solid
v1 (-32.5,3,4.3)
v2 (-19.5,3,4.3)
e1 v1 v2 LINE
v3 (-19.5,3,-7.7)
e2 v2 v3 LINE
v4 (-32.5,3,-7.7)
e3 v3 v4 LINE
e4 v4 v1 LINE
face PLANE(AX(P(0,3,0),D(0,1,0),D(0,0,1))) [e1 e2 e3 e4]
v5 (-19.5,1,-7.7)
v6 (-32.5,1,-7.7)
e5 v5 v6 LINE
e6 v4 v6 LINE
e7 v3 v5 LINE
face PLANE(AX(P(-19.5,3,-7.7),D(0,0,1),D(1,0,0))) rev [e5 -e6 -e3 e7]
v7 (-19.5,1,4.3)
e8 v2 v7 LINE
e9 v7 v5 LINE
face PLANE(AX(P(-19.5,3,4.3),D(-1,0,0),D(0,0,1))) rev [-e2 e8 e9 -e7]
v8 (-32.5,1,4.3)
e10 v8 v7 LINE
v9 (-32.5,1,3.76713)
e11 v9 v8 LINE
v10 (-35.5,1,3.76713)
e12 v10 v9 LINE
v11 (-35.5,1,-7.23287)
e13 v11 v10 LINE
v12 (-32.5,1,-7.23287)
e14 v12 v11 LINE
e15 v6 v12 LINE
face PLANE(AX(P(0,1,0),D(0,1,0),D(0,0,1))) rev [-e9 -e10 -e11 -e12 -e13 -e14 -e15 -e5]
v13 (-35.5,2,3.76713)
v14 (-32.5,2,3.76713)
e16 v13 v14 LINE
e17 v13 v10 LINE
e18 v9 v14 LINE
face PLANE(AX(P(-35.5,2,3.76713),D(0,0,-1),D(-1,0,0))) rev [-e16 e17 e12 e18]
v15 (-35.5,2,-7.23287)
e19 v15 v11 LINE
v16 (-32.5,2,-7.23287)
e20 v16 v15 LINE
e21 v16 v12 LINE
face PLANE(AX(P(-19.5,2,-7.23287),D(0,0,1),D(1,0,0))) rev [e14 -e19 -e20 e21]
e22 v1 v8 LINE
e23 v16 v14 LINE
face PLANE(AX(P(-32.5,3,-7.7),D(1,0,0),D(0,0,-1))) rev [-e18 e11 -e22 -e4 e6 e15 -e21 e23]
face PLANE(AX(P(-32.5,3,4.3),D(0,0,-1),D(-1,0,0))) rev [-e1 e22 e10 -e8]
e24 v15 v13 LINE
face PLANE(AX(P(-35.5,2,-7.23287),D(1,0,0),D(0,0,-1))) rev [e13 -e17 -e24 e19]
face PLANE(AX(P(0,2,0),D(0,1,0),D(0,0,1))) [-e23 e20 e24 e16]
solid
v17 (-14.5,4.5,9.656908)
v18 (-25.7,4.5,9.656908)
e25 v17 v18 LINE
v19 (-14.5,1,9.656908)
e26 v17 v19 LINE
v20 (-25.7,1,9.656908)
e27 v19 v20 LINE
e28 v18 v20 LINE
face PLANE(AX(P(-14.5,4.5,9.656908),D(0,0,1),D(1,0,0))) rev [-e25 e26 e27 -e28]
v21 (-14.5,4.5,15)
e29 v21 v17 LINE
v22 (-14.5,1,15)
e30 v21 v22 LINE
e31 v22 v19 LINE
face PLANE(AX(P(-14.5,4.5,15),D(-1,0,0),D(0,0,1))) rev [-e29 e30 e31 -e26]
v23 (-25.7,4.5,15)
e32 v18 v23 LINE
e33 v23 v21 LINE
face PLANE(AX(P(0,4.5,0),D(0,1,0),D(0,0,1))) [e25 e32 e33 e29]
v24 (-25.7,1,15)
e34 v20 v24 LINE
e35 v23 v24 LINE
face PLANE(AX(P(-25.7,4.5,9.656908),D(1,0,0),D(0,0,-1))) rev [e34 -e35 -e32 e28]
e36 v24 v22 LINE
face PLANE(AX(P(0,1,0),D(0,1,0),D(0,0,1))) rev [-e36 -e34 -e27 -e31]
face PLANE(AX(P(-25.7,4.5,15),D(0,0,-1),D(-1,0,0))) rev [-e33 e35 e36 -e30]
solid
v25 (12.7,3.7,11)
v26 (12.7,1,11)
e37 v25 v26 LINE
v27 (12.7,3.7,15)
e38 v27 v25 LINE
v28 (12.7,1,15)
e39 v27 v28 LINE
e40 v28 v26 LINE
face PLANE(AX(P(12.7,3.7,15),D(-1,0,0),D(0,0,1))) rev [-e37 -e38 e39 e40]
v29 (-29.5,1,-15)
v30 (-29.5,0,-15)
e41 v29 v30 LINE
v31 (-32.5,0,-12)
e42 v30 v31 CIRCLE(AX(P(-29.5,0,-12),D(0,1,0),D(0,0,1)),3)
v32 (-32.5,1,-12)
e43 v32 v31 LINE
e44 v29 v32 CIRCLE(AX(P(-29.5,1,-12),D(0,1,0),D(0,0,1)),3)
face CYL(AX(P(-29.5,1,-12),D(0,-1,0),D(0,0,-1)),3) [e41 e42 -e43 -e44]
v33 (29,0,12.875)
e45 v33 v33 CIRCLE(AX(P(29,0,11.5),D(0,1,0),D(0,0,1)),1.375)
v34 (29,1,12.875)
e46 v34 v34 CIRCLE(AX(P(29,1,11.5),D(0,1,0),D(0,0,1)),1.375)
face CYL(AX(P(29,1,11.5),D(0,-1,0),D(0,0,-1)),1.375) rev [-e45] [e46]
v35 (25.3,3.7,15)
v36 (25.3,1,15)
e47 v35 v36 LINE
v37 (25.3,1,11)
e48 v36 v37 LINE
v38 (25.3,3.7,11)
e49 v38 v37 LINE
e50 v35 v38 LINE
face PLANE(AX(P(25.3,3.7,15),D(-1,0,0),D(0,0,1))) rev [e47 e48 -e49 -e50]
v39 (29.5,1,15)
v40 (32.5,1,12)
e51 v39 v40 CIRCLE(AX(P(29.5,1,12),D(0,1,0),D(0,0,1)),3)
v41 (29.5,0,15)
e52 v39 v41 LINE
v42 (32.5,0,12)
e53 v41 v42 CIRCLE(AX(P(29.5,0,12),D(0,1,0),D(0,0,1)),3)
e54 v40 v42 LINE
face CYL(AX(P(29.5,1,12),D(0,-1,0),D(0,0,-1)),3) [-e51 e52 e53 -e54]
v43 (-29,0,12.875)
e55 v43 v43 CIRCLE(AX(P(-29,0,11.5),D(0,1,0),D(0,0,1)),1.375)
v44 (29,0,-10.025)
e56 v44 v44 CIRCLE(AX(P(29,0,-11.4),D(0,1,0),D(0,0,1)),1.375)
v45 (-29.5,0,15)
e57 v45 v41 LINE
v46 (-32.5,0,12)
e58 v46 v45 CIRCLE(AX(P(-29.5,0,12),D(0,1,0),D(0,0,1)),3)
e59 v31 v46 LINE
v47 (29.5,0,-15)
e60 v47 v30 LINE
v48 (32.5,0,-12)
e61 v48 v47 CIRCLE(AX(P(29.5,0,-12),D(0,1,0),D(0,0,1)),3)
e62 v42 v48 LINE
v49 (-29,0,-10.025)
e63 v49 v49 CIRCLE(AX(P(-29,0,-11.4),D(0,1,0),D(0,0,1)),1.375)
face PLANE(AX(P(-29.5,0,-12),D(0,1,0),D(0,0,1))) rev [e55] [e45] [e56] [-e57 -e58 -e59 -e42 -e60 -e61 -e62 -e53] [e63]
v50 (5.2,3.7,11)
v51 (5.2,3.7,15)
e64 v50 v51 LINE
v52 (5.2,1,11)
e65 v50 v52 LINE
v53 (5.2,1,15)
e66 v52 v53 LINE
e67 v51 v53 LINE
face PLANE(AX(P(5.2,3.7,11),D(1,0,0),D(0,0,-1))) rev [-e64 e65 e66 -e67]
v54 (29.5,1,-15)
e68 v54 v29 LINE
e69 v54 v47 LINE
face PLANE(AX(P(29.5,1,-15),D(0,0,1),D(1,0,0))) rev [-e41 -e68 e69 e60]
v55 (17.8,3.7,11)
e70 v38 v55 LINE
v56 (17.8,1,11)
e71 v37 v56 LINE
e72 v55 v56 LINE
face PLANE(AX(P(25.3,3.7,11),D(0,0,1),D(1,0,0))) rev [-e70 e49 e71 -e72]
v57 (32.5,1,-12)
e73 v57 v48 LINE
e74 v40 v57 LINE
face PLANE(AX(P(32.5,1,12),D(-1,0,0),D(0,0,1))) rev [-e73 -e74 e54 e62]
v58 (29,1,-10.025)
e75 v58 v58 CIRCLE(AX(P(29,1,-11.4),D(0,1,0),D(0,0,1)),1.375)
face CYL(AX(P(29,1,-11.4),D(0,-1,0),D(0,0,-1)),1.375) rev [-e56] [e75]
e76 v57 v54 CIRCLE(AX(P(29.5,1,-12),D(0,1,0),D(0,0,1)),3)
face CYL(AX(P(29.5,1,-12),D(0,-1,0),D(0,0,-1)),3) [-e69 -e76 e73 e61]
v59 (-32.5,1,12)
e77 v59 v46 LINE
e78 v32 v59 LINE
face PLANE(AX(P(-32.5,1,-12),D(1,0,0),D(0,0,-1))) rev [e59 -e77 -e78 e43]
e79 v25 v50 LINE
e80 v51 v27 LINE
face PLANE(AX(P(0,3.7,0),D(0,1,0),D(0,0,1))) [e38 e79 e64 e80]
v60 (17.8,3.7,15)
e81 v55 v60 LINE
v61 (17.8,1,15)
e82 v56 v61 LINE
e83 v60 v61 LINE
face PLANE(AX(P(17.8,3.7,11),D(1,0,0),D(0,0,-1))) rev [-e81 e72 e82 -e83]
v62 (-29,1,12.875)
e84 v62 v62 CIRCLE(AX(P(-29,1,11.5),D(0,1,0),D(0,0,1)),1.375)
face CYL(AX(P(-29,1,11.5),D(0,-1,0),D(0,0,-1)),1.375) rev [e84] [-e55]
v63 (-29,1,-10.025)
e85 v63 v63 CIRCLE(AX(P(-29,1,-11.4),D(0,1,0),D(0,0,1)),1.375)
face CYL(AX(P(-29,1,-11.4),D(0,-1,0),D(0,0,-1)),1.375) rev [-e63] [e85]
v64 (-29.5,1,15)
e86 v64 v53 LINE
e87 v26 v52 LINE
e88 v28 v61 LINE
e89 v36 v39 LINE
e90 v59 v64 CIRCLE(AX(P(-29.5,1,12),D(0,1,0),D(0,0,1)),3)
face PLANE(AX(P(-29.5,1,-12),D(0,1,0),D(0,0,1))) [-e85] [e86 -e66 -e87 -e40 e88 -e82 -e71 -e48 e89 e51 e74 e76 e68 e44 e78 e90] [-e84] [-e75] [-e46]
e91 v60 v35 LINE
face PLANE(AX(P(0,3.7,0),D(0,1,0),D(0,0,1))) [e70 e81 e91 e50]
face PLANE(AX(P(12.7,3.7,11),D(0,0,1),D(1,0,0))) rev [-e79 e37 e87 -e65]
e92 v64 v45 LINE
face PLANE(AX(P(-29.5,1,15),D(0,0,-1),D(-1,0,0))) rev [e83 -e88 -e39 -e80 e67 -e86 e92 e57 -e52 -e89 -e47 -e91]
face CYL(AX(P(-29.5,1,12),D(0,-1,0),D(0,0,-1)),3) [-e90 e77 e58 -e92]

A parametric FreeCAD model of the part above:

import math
import FreeCAD as App
import Part
import Sketcher
from FreeCAD import Vector
Q = App.Units.Quantity

doc = App.newDocument("Part")
body = doc.addObject("PartDesign::Body", "Body")

# Sketch on XZ plane
sketch1 = body.newObject("Sketcher::SketchObject", "Sketch")
sketch1.AttachmentSupport = (doc.getObject("XZ_Plane"), [""])
sketch1.MapMode = "FlatFace"
sketch1.addGeometry([
    Part.LineSegment(Vector(-32.5, -12, 0), Vector(-32.5, 12, 0)),  # 0
    Part.ArcOfCircle(Part.Circle(Vector(-29.5, 12, 0), Vector(0, 0, 1), 3), math.radians(90), math.radians(180)),  # 1
    Part.LineSegment(Vector(-29.5, 15, 0), Vector(29.5, 15, 0)),  # 2
    Part.ArcOfCircle(Part.Circle(Vector(29.5, 12, 0), Vector(0, 0, 1), 3), math.radians(0), math.radians(90)),  # 3
    Part.LineSegment(Vector(32.5, 12, 0), Vector(32.5, -12, 0)),  # 4
    Part.ArcOfCircle(Part.Circle(Vector(29.5, -12, 0), Vector(0, 0, 1), 3), math.radians(-90), math.radians(0)),  # 5
    Part.LineSegment(Vector(29.5, -15, 0), Vector(-29.5, -15, 0)),  # 6
    Part.ArcOfCircle(Part.Circle(Vector(-29.5, -12, 0), Vector(0, 0, 1), 3), math.radians(180), math.radians(270)),  # 7
    Part.Circle(Vector(-29, 11.5, 0), Vector(0, 0, 1), 1.375),  # 8
    Part.Circle(Vector(29, 11.5, 0), Vector(0, 0, 1), 1.375),  # 9
    Part.Circle(Vector(-29, -11.4, 0), Vector(0, 0, 1), 1.375),  # 10
    Part.Circle(Vector(29, -11.4, 0), Vector(0, 0, 1), 1.375),  # 11
], False)
sketch1.addConstraint([
    Sketcher.Constraint("Tangent", 0, 2, 1, 2),
    Sketcher.Constraint("Tangent", 1, 1, 2, 1),
    Sketcher.Constraint("Tangent", 2, 2, 3, 2),
    Sketcher.Constraint("Tangent", 3, 1, 4, 1),
    Sketcher.Constraint("Tangent", 4, 2, 5, 2),
    Sketcher.Constraint("Tangent", 5, 1, 6, 1),
    Sketcher.Constraint("Tangent", 6, 2, 7, 2),
    Sketcher.Constraint("Tangent", 7, 1, 0, 1),
    Sketcher.Constraint("Vertical", 0),
    Sketcher.Constraint("Horizontal", 2),
    Sketcher.Constraint("Vertical", 4),
    Sketcher.Constraint("Horizontal", 6),
    Sketcher.Constraint("Equal", 1, 3),
    Sketcher.Constraint("Equal", 3, 5),
    Sketcher.Constraint("Equal", 5, 7),
    Sketcher.Constraint("Equal", 8, 9),
    Sketcher.Constraint("Equal", 9, 10),
    Sketcher.Constraint("Equal", 10, 11),
    Sketcher.Constraint("Symmetric", 1, 3, 5, 3, -1, 1),
    Sketcher.Constraint("Symmetric", 8, 3, 9, 3, -2),
    Sketcher.Constraint("Symmetric", 10, 3, 11, 3, -2),
    Sketcher.Constraint("Vertical", 8, 3, 10, 3),
    Sketcher.Constraint("Radius", 1, Q("3 mm")),
    Sketcher.Constraint("Diameter", 8, Q("2.75 mm")),
    Sketcher.Constraint("DistanceX", 2, 1, 2, 2, Q("59 mm")),
    Sketcher.Constraint("DistanceY", 0, 1, 0, 2, Q("24 mm")),
    Sketcher.Constraint("DistanceX", 8, 3, -1, 1, Q("29 mm")),
    Sketcher.Constraint("DistanceY", -1, 1, 8, 3, Q("11.5 mm")),
    Sketcher.Constraint("DistanceY", 10, 3, -1, 1, Q("11.4 mm")),
])
pad1 = body.newObject("PartDesign::Pad", "Pad")
pad1.Profile = sketch1
pad1.Length = 1
pad1.Reversed = True

# Sketch on XZ plane
sketch2 = body.newObject("Sketcher::SketchObject", "Sketch001")
sketch2.AttachmentSupport = (doc.getObject("XZ_Plane"), [""])
sketch2.MapMode = "FlatFace"
sketch2.AttachmentOffset = App.Placement(Vector(0, 0, -1), App.Rotation())
sketch2.addGeometry([
    Part.LineSegment(Vector(17.8, 11, 0), Vector(17.8, 15, 0)),  # 0
    Part.LineSegment(Vector(17.8, 15, 0), Vector(25.3, 15, 0)),  # 1
    Part.LineSegment(Vector(25.3, 15, 0), Vector(25.3, 11, 0)),  # 2
    Part.LineSegment(Vector(25.3, 11, 0), Vector(17.8, 11, 0)),  # 3
    Part.LineSegment(Vector(5.2, 11, 0), Vector(5.2, 15, 0)),  # 4
    Part.LineSegment(Vector(5.2, 15, 0), Vector(12.7, 15, 0)),  # 5
    Part.LineSegment(Vector(12.7, 15, 0), Vector(12.7, 11, 0)),  # 6
    Part.LineSegment(Vector(12.7, 11, 0), Vector(5.2, 11, 0)),  # 7
], False)
sketch2.addConstraint([
    Sketcher.Constraint("Coincident", 0, 2, 1, 1),
    Sketcher.Constraint("Coincident", 1, 2, 2, 1),
    Sketcher.Constraint("Coincident", 2, 2, 3, 1),
    Sketcher.Constraint("Coincident", 3, 2, 0, 1),
    Sketcher.Constraint("Coincident", 4, 2, 5, 1),
    Sketcher.Constraint("Coincident", 5, 2, 6, 1),
    Sketcher.Constraint("Coincident", 6, 2, 7, 1),
    Sketcher.Constraint("Coincident", 7, 2, 4, 1),
    Sketcher.Constraint("Vertical", 0),
    Sketcher.Constraint("Horizontal", 1),
    Sketcher.Constraint("Vertical", 2),
    Sketcher.Constraint("Horizontal", 3),
    Sketcher.Constraint("Vertical", 4),
    Sketcher.Constraint("Horizontal", 5),
    Sketcher.Constraint("Vertical", 6),
    Sketcher.Constraint("Horizontal", 7),
    Sketcher.Constraint("Horizontal", 1, 2, 4, 2),
    Sketcher.Constraint("Horizontal", 3, 2, 6, 2),
    Sketcher.Constraint("Equal", 3, 5),
    Sketcher.Constraint("DistanceY", 0, 1, 0, 2, Q("4 mm")),
    Sketcher.Constraint("DistanceX", 1, 1, 1, 2, Q("7.5 mm")),
    Sketcher.Constraint("DistanceY", -1, 1, 0, 2, Q("15 mm")),
    Sketcher.Constraint("DistanceX", -1, 1, 0, 2, Q("17.8 mm")),
    Sketcher.Constraint("DistanceX", -1, 1, 4, 2, Q("5.2 mm")),
])
pad2 = body.newObject("PartDesign::Pad", "Pad001")
pad2.Profile = sketch2
pad2.Length = 2.7
pad2.Reversed = True
body2 = doc.addObject("PartDesign::Body", "Body001")

# Sketch on XZ plane
sketch3 = body2.newObject("Sketcher::SketchObject", "Sketch002")
sketch3.AttachmentSupport = (doc.getObject("XZ_Plane001"), [""])
sketch3.MapMode = "FlatFace"
sketch3.AttachmentOffset = App.Placement(Vector(0, 0, -1), App.Rotation())
sketch3.addGeometry([
    Part.LineSegment(Vector(-25.7, 9.656908, 0), Vector(-25.7, 15, 0)),
    Part.LineSegment(Vector(-25.7, 15, 0), Vector(-14.5, 15, 0)),
    Part.LineSegment(Vector(-14.5, 15, 0), Vector(-14.5, 9.656908, 0)),
    Part.LineSegment(Vector(-14.5, 9.656908, 0), Vector(-25.7, 9.656908, 0)),
], False)
sketch3.addConstraint([
    Sketcher.Constraint("Coincident", 0, 2, 1, 1),
    Sketcher.Constraint("Coincident", 1, 2, 2, 1),
    Sketcher.Constraint("Coincident", 2, 2, 3, 1),
    Sketcher.Constraint("Coincident", 3, 2, 0, 1),
    Sketcher.Constraint("Vertical", 0),
    Sketcher.Constraint("Horizontal", 1),
    Sketcher.Constraint("Vertical", 2),
    Sketcher.Constraint("Horizontal", 3),
    Sketcher.Constraint("DistanceX", 1, 1, 1, 2, Q("11.2 mm")),
    Sketcher.Constraint("DistanceY", -1, 1, 0, 2, Q("15 mm")),
    Sketcher.Constraint("DistanceX", 0, 2, -1, 1, Q("25.7 mm")),
    Sketcher.Constraint("DistanceY", 0, 1, 0, 2, Q("5.343092 mm")),
])
pad3 = body2.newObject("PartDesign::Pad", "Pad002")
pad3.Profile = sketch3
pad3.Length = 3.5
pad3.Reversed = True
body3 = doc.addObject("PartDesign::Body", "Body002")

# Sketch on XZ plane
sketch4 = body3.newObject("Sketcher::SketchObject", "Sketch003")
sketch4.AttachmentSupport = (doc.getObject("XZ_Plane002"), [""])
sketch4.MapMode = "FlatFace"
sketch4.AttachmentOffset = App.Placement(Vector(0, 0, -1), App.Rotation())
sketch4.addGeometry([
    Part.LineSegment(Vector(-32.5, -7.7, 0), Vector(-32.5, 4.3, 0)),
    Part.LineSegment(Vector(-32.5, 4.3, 0), Vector(-19.5, 4.3, 0)),
    Part.LineSegment(Vector(-19.5, 4.3, 0), Vector(-19.5, -7.7, 0)),
    Part.LineSegment(Vector(-19.5, -7.7, 0), Vector(-32.5, -7.7, 0)),
], False)
sketch4.addConstraint([
    Sketcher.Constraint("Coincident", 0, 2, 1, 1),
    Sketcher.Constraint("Coincident", 1, 2, 2, 1),
    Sketcher.Constraint("Coincident", 2, 2, 3, 1),
    Sketcher.Constraint("Coincident", 3, 2, 0, 1),
    Sketcher.Constraint("Vertical", 0),
    Sketcher.Constraint("Horizontal", 1),
    Sketcher.Constraint("Vertical", 2),
    Sketcher.Constraint("Horizontal", 3),
    Sketcher.Constraint("DistanceX", 1, 1, 1, 2, Q("13 mm")),
    Sketcher.Constraint("DistanceY", 0, 1, 0, 2, Q("12 mm")),
    Sketcher.Constraint("DistanceX", 0, 2, -1, 1, Q("32.5 mm")),
    Sketcher.Constraint("DistanceY", -1, 1, 0, 2, Q("4.3 mm")),
])
pad4 = body3.newObject("PartDesign::Pad", "Pad003")
pad4.Profile = sketch4
pad4.Length = 2
pad4.Reversed = True

# Sketch on XZ plane
sketch5 = body3.newObject("Sketcher::SketchObject", "Sketch004")
sketch5.AttachmentSupport = (doc.getObject("XZ_Plane002"), [""])
sketch5.MapMode = "FlatFace"
sketch5.AttachmentOffset = App.Placement(Vector(0, 0, -1), App.Rotation())
sketch5.addGeometry([
    Part.LineSegment(Vector(-35.5, -7.23287, 0), Vector(-35.5, 3.76713, 0)),
    Part.LineSegment(Vector(-35.5, 3.76713, 0), Vector(-19.5, 3.76713, 0)),
    Part.LineSegment(Vector(-19.5, 3.76713, 0), Vector(-19.5, -7.23287, 0)),
    Part.LineSegment(Vector(-19.5, -7.23287, 0), Vector(-35.5, -7.23287, 0)),
], False)
sketch5.addConstraint([
    Sketcher.Constraint("Coincident", 0, 2, 1, 1),
    Sketcher.Constraint("Coincident", 1, 2, 2, 1),
    Sketcher.Constraint("Coincident", 2, 2, 3, 1),
    Sketcher.Constraint("Coincident", 3, 2, 0, 1),
    Sketcher.Constraint("Vertical", 0),
    Sketcher.Constraint("Horizontal", 1),
    Sketcher.Constraint("Vertical", 2),
    Sketcher.Constraint("Horizontal", 3),
    Sketcher.Constraint("DistanceX", 1, 1, 1, 2, Q("16 mm")),
    Sketcher.Constraint("DistanceY", 0, 1, 0, 2, Q("11 mm")),
    Sketcher.Constraint("DistanceX", 0, 2, -1, 1, Q("35.5 mm")),
    Sketcher.Constraint("DistanceY", -1, 1, 0, 2, Q("3.76713 mm")),
])
pad5 = body3.newObject("PartDesign::Pad", "Pad004")
pad5.Profile = sketch5
pad5.Length = 1
pad5.Reversed = True

doc.recompute()
